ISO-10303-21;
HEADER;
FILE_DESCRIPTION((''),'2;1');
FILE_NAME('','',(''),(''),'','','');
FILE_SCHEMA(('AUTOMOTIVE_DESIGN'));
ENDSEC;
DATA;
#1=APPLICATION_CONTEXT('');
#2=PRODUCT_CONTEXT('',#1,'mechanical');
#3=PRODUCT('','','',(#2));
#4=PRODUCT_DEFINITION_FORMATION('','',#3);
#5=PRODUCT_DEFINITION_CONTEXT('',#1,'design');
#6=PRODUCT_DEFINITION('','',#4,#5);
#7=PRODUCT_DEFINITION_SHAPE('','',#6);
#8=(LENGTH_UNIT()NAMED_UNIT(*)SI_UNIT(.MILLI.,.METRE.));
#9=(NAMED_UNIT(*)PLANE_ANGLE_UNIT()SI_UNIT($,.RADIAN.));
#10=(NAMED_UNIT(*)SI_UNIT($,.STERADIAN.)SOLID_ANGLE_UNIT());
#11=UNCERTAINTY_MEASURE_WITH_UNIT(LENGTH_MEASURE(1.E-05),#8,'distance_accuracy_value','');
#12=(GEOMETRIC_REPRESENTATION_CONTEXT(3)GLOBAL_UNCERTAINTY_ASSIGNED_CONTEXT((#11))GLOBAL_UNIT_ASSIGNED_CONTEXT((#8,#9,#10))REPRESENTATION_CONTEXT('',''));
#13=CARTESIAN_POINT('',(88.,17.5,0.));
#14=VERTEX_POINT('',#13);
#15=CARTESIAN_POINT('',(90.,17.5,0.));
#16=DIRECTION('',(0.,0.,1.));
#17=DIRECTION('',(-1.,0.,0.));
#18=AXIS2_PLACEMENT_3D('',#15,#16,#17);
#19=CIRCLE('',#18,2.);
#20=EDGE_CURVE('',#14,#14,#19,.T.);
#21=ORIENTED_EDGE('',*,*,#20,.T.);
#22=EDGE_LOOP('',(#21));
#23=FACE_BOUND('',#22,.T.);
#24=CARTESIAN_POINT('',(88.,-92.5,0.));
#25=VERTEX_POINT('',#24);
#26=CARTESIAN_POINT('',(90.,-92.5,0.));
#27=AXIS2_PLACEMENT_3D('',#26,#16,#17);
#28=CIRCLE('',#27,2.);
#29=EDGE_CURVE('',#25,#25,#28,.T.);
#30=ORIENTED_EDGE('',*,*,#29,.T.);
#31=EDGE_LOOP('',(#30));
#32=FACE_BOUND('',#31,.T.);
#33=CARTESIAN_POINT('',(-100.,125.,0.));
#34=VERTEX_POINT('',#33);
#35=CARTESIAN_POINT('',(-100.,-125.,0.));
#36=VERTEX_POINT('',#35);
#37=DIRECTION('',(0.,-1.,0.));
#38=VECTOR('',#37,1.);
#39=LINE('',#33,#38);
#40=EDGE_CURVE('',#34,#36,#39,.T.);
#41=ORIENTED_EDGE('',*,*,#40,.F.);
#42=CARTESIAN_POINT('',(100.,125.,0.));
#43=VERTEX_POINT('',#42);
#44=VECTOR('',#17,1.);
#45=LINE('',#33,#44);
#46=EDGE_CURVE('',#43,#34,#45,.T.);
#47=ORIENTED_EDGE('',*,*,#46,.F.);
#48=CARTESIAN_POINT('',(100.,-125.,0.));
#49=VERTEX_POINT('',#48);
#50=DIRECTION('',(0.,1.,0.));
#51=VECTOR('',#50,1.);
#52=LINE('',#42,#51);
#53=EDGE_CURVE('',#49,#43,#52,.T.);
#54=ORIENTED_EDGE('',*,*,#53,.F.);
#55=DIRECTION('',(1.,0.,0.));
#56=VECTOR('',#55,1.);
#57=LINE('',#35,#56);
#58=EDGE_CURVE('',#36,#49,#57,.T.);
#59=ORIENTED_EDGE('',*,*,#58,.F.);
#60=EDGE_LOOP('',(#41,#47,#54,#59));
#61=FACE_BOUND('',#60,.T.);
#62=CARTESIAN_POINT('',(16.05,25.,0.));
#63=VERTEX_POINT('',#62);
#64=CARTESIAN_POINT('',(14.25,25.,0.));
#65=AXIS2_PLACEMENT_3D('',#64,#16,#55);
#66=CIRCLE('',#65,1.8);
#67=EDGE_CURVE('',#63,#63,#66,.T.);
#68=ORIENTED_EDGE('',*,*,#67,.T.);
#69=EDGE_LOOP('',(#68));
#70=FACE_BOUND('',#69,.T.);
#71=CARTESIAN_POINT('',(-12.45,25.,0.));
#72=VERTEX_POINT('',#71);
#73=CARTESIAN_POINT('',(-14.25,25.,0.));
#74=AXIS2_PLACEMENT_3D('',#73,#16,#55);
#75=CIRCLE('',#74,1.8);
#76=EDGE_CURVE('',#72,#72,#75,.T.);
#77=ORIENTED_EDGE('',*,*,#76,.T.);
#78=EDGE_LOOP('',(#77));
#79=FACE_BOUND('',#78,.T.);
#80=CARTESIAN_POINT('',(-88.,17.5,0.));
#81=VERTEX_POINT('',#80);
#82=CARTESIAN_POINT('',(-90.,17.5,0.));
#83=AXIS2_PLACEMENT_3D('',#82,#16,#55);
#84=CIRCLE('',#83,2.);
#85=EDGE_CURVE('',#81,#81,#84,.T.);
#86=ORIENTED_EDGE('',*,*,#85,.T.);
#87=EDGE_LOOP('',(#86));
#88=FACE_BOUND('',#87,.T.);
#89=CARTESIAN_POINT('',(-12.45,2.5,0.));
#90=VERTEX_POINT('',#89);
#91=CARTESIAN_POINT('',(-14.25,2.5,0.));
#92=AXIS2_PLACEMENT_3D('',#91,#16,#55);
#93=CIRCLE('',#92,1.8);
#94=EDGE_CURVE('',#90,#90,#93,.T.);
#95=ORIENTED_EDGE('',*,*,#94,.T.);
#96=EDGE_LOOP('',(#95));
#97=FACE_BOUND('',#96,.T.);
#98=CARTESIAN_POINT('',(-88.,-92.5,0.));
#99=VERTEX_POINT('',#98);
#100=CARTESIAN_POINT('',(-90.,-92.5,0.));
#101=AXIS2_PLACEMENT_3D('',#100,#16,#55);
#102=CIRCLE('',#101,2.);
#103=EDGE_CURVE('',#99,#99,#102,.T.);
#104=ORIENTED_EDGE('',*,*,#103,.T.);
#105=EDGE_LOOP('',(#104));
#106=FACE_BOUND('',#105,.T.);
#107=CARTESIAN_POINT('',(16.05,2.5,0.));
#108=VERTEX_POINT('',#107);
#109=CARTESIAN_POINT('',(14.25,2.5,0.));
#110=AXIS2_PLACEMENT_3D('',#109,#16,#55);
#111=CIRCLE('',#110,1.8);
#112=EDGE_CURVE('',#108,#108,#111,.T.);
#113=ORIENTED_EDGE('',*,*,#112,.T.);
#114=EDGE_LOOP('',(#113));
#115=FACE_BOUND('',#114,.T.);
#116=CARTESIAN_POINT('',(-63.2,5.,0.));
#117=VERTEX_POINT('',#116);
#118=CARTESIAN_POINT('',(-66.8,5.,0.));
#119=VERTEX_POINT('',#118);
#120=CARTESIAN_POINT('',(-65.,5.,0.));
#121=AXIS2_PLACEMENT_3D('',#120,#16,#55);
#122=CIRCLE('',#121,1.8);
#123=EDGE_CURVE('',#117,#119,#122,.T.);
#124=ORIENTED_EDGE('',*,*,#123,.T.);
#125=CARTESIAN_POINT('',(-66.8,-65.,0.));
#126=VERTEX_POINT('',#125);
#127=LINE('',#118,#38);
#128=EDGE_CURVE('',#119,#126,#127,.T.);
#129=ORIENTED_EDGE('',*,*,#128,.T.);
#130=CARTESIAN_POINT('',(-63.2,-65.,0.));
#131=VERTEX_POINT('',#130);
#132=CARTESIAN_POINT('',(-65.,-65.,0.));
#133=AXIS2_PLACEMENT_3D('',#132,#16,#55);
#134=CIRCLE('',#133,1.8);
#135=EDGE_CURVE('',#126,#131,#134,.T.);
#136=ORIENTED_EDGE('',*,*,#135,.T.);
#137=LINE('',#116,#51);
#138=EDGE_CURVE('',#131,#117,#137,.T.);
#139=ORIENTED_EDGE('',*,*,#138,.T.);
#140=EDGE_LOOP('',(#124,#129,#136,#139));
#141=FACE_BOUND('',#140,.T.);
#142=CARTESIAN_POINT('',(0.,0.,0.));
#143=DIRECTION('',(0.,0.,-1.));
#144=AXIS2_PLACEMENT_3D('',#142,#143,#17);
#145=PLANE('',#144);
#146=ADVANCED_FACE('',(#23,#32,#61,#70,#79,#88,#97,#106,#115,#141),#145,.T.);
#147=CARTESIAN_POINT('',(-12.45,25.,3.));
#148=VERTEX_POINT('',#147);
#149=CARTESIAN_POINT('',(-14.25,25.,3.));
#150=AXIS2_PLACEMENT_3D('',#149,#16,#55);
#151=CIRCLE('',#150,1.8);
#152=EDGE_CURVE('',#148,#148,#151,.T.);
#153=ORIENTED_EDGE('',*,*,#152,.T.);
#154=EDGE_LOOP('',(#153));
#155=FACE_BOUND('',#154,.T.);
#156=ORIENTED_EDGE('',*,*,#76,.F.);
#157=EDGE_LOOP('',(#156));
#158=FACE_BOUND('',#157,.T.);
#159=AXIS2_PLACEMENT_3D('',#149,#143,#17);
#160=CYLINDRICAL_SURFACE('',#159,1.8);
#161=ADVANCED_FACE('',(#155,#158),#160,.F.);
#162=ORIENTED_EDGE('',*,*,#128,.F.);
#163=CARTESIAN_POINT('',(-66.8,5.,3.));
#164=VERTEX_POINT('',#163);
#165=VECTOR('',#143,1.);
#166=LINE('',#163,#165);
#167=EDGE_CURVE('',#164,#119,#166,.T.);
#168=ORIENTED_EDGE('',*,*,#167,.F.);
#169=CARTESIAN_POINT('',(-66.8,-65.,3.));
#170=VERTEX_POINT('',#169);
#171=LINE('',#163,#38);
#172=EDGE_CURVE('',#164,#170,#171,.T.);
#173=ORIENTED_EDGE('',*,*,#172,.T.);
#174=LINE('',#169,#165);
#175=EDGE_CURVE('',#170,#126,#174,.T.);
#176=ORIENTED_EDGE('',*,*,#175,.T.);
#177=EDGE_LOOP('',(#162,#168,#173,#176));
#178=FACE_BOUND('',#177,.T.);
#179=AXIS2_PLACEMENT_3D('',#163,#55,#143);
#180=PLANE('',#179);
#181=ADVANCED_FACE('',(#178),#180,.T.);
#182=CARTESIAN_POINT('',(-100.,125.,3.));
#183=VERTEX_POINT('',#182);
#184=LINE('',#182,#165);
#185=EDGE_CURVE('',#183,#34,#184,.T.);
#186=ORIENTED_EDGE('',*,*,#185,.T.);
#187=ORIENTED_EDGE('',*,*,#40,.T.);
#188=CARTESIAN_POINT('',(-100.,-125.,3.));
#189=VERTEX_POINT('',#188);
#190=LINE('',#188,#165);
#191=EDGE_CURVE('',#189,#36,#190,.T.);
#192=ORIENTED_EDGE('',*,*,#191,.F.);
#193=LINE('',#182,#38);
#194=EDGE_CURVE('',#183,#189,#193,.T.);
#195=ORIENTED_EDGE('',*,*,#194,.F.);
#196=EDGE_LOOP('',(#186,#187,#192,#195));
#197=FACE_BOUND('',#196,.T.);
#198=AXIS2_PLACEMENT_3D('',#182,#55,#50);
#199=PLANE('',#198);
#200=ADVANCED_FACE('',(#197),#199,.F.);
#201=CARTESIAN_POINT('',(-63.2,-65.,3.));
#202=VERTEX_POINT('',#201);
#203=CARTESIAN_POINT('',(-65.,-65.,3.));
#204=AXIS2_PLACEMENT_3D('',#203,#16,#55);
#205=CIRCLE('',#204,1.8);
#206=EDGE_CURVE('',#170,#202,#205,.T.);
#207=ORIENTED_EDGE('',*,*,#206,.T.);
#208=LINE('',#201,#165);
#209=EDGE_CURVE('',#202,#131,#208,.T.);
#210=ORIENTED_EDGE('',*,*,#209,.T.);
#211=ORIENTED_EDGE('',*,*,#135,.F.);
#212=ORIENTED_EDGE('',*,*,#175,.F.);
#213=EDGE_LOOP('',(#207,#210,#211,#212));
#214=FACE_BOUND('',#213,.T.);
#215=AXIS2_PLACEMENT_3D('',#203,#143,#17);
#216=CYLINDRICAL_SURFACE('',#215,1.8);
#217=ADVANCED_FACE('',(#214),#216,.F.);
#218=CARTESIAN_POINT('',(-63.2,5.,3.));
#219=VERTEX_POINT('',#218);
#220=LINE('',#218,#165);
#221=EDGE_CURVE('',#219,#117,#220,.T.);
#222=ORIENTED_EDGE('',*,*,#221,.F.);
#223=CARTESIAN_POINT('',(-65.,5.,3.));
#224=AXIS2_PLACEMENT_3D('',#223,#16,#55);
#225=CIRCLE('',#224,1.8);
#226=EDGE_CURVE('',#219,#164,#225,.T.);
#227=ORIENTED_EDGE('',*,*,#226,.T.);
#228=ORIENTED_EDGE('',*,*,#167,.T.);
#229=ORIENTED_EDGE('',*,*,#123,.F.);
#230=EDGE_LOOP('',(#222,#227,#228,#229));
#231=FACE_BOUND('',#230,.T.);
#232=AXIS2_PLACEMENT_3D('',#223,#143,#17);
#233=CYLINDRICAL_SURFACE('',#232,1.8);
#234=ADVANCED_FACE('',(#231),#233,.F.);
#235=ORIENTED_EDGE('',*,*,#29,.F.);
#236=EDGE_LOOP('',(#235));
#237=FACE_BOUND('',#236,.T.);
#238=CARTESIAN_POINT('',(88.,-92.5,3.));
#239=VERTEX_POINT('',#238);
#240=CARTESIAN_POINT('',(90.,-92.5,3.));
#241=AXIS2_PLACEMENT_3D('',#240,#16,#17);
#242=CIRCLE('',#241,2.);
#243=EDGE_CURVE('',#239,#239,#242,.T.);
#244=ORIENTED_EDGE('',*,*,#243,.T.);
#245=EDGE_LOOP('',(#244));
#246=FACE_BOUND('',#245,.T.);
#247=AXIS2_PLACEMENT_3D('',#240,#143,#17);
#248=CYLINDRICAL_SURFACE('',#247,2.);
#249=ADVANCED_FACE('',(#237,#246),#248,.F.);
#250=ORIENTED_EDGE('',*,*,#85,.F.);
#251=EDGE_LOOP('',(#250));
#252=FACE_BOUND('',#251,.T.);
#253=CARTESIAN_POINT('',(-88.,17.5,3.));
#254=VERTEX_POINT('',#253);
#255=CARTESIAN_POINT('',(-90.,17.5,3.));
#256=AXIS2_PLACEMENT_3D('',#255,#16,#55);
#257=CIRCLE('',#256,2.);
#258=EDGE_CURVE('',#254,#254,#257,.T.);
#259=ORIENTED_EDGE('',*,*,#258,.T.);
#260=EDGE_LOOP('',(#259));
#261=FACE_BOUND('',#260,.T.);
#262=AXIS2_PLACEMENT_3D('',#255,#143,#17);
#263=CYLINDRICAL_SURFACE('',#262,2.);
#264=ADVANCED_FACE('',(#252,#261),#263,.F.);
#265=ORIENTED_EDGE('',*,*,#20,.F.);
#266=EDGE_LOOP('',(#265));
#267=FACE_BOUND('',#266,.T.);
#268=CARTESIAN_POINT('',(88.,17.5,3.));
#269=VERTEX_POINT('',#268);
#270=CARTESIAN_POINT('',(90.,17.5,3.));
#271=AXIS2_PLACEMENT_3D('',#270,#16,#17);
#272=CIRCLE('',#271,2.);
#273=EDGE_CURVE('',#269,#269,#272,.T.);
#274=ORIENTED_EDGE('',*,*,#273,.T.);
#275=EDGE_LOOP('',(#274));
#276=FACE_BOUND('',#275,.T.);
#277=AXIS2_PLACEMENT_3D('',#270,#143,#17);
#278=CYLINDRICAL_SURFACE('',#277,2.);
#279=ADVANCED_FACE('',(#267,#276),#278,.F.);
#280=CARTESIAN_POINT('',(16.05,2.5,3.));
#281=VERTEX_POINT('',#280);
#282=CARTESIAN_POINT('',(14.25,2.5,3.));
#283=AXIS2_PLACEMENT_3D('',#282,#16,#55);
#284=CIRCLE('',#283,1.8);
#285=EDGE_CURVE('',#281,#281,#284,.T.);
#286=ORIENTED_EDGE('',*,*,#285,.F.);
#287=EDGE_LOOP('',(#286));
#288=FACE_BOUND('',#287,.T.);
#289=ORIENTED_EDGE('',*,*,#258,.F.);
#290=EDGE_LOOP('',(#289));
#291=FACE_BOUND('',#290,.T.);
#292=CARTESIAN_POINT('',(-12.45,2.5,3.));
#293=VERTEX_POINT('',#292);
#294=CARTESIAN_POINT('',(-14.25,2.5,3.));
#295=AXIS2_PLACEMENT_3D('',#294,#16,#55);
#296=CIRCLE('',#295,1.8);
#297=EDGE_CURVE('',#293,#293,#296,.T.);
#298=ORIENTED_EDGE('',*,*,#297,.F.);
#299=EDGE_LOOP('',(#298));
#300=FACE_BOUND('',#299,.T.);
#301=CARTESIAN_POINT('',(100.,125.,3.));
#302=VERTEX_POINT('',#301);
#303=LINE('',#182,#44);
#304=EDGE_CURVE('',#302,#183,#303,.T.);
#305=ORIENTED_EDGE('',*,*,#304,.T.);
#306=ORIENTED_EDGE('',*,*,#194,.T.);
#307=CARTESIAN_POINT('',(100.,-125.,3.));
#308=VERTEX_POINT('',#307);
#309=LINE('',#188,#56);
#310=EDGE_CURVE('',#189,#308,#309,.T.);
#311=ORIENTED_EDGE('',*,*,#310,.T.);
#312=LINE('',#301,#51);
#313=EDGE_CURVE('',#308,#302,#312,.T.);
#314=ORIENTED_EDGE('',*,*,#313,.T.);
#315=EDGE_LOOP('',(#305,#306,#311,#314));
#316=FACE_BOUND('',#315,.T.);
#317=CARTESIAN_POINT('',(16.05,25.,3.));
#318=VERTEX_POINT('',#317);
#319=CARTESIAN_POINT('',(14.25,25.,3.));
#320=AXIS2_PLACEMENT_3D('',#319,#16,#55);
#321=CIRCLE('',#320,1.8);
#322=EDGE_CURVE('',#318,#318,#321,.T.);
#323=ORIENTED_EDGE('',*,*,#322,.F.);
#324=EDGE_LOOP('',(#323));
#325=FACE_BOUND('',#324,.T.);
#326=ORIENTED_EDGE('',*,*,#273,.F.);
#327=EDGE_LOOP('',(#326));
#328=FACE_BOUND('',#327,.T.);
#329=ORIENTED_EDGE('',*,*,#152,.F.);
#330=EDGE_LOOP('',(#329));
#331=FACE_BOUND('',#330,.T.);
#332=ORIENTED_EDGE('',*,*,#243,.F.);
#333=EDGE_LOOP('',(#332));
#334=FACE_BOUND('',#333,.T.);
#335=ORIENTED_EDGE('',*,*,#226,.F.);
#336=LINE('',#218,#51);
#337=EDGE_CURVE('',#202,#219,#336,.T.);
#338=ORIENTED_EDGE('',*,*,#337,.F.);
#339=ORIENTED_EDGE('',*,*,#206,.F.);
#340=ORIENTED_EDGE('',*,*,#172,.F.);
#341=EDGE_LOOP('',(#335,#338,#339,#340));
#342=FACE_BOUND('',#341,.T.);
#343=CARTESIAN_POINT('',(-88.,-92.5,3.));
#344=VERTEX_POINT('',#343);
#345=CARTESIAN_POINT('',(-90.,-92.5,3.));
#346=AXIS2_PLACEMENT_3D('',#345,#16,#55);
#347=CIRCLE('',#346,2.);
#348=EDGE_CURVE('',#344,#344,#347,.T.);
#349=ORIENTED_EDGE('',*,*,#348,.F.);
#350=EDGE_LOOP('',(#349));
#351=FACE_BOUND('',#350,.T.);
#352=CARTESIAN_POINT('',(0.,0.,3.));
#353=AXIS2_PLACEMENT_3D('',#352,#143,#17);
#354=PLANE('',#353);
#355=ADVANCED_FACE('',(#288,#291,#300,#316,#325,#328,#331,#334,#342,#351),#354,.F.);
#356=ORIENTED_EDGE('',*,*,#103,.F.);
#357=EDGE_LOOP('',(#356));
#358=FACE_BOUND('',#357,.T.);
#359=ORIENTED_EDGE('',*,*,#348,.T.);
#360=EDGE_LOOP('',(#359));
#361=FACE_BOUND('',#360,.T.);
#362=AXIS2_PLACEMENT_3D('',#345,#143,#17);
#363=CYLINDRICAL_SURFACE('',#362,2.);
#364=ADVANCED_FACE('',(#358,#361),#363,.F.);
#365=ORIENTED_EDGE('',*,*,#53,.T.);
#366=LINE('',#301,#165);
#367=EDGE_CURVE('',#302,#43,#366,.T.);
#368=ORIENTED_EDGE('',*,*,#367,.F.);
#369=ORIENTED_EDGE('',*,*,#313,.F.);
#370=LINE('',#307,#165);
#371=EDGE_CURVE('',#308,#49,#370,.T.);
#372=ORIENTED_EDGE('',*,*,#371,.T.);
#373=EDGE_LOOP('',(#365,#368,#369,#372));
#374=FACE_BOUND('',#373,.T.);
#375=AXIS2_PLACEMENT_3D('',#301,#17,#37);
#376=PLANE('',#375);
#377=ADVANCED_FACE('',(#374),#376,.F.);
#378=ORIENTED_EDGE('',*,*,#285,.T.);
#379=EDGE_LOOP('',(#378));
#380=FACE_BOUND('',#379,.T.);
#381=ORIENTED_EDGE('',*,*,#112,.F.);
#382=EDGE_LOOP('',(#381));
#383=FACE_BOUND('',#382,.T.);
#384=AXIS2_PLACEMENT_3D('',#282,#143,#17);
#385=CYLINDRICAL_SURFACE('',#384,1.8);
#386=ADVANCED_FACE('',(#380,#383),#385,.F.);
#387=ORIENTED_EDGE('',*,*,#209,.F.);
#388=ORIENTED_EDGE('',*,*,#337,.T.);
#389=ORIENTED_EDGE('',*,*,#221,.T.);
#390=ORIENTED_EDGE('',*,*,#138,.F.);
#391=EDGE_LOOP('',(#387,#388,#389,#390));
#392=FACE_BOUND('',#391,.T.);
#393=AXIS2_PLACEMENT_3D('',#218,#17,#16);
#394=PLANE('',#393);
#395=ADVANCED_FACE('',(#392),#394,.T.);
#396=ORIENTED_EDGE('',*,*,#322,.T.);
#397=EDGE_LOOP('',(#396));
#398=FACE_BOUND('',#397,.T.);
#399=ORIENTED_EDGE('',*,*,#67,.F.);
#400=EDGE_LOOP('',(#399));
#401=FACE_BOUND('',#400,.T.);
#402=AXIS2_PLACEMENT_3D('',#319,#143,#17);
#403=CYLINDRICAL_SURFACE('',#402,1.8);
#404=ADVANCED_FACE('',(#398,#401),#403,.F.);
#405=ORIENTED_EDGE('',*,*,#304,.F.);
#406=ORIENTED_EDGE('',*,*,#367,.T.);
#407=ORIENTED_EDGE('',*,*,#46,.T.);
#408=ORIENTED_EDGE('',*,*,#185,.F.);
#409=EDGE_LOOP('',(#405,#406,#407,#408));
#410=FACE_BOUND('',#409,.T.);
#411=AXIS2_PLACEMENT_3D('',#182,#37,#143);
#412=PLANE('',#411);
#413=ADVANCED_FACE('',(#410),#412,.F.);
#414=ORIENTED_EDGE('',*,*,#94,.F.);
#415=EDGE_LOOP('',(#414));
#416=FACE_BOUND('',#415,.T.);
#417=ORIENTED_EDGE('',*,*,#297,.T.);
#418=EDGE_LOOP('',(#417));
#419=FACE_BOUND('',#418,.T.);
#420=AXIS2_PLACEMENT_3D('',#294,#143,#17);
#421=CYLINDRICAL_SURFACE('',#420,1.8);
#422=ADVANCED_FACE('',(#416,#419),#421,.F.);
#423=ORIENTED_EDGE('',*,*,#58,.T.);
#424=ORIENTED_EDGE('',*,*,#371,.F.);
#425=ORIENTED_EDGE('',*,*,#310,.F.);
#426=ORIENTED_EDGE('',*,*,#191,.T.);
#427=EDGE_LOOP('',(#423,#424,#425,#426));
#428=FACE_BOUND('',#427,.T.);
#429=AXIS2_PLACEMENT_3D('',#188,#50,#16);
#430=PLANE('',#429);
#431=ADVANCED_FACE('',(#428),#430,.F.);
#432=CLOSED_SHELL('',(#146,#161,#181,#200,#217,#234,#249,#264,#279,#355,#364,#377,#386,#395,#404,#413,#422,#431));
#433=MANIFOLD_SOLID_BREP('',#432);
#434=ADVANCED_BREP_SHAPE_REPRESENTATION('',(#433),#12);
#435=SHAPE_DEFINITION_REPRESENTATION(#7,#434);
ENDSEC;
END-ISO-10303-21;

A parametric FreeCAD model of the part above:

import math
import FreeCAD as App
import Part
import Sketcher

V = App.Vector

doc = App.newDocument("Part")
params = doc.addObject("Spreadsheet::Sheet", "Params")
for row, (alias, value) in enumerate([
    ("sketch1_diameter", "4 mm"),
    ("sketch1_diameter2", "3.6 mm"),
    ("sketch1_width", "200 mm"),
    ("sketch1_height", "250 mm"),
    ("sketch1_height2", "70 mm"),
    ("pad1_length", "3 mm"),
], start=1):
    params.set(f"A{row}", alias)
    params.set(f"B{row}", "=" + value)
    params.setAlias(f"B{row}", alias)

body = doc.addObject("PartDesign::Body", "Body")

# Sketch on XY plane
sketch1 = body.newObject("Sketcher::SketchObject", "Sketch")
sketch1.AttachmentSupport = (doc.getObject("XY_Plane"), [""])
sketch1.MapMode = "FlatFace"
sketch1.addGeometry(Part.LineSegment(V(-100, 125, 0), V(-100, -125, 0)), False)
sketch1.addGeometry(Part.LineSegment(V(-100, -125, 0), V(100, -125, 0)), False)
sketch1.addGeometry(Part.LineSegment(V(100, -125, 0), V(100, 125, 0)), False)
sketch1.addGeometry(Part.LineSegment(V(100, 125, 0), V(-100, 125, 0)), False)
sketch1.addGeometry(Part.Circle(V(-90, -92.5, 0), V(0, 0, 1), 2), False)
sketch1.addGeometry(Part.Circle(V(90, -92.5, 0), V(0, 0, 1), 2), False)
sketch1.addGeometry(Part.ArcOfCircle(Part.Circle(V(-65, 5, 0), V(0, 0, 1), 1.8), math.radians(0), math.radians(180)), False)
sketch1.addGeometry(Part.LineSegment(V(-63.2, 5, 0), V(-63.2, -65, 0)), False)
sketch1.addGeometry(Part.ArcOfCircle(Part.Circle(V(-65, -65, 0), V(0, 0, 1), 1.8), math.radians(180), math.radians(360)), False)
sketch1.addGeometry(Part.LineSegment(V(-66.8, -65, 0), V(-66.8, 5, 0)), False)
sketch1.addGeometry(Part.Circle(V(-90, 17.5, 0), V(0, 0, 1), 2), False)
sketch1.addGeometry(Part.Circle(V(-14.2, 2.5, 0), V(0, 0, 1), 1.8), False)
sketch1.addGeometry(Part.Circle(V(-14.2, 25, 0), V(0, 0, 1), 1.8), False)
sketch1.addGeometry(Part.Circle(V(14.2, 2.5, 0), V(0, 0, 1), 1.8), False)
sketch1.addGeometry(Part.Circle(V(14.2, 25, 0), V(0, 0, 1), 1.8), False)
sketch1.addGeometry(Part.Circle(V(90, 17.5, 0), V(0, 0, 1), 2), False)
sketch1.addConstraint(Sketcher.Constraint("Coincident", 0, 2, 1, 1))
sketch1.addConstraint(Sketcher.Constraint("Coincident", 1, 2, 2, 1))
sketch1.addConstraint(Sketcher.Constraint("Coincident", 2, 2, 3, 1))
sketch1.addConstraint(Sketcher.Constraint("Coincident", 3, 2, 0, 1))
sketch1.addConstraint(Sketcher.Constraint("Tangent", 6, 1, 7, 1))
sketch1.addConstraint(Sketcher.Constraint("Tangent", 7, 2, 8, 2))
sketch1.addConstraint(Sketcher.Constraint("Tangent", 8, 1, 9, 1))
sketch1.addConstraint(Sketcher.Constraint("Tangent", 9, 2, 6, 2))
sketch1.addConstraint(Sketcher.Constraint("Vertical", 0))
sketch1.addConstraint(Sketcher.Constraint("Horizontal", 1))
sketch1.addConstraint(Sketcher.Constraint("Vertical", 2))
sketch1.addConstraint(Sketcher.Constraint("Horizontal", 3))
sketch1.addConstraint(Sketcher.Constraint("Vertical", 7))
sketch1.addConstraint(Sketcher.Constraint("Vertical", 9))
sketch1.addConstraint(Sketcher.Constraint("Equal", 4, 5))
sketch1.addConstraint(Sketcher.Constraint("Equal", 5, 10))
sketch1.addConstraint(Sketcher.Constraint("Equal", 8, 11))
sketch1.addConstraint(Sketcher.Constraint("Equal", 11, 12))
sketch1.addConstraint(Sketcher.Constraint("Equal", 12, 13))
sketch1.addConstraint(Sketcher.Constraint("Equal", 13, 14))
sketch1.addConstraint(Sketcher.Constraint("Equal", 10, 15))
sketch1.addConstraint(Sketcher.Constraint("Symmetric", 0, 2, 2, 2, -1, 1))
sketch1.addConstraint(Sketcher.Constraint("Symmetric", 4, 3, 5, 3, -2))
sketch1.addConstraint(Sketcher.Constraint("Symmetric", 11, 3, 13, 3, -2))
sketch1.addConstraint(Sketcher.Constraint("Symmetric", 12, 3, 14, 3, -2))
sketch1.addConstraint(Sketcher.Constraint("Symmetric", 10, 3, 15, 3, -2))
sketch1.addConstraint(Sketcher.Constraint("Vertical", 4, 3, 10, 3))
sketch1.addConstraint(Sketcher.Constraint("Vertical", 11, 3, 12, 3))
sketch1.addConstraint(Sketcher.Constraint("Diameter", 4, 4.0))
sketch1.addConstraint(Sketcher.Constraint("Diameter", 11, 3.6))
sketch1.addConstraint(Sketcher.Constraint("DistanceX", 1, 1, 1, 2, 200.0))
sketch1.addConstraint(Sketcher.Constraint("DistanceY", 0, 2, 0, 1, 250.0))
sketch1.addConstraint(Sketcher.Constraint("DistanceY", 7, 2, 7, 1, 70.0))
sketch1.addConstraint(Sketcher.Constraint("DistanceX", 4, 3, -1, 1, 90.0))
sketch1.addConstraint(Sketcher.Constraint("DistanceX", 6, 3, -1, 1, 65.0))
sketch1.addConstraint(Sketcher.Constraint("DistanceY", -1, 1, 6, 3, 5.0))
sketch1.addConstraint(Sketcher.Constraint("DistanceY", -1, 1, 12, 3, 25.0))
sketch1.addConstraint(Sketcher.Constraint("DistanceY", 4, 3, 10, 3, 110.0))
sketch1.addConstraint(Sketcher.Constraint("DistanceY", 11, 3, 10, 3, 15.0))
sketch1.addConstraint(Sketcher.Constraint("DistanceY", 4, 3, -1, 1, 92.5))
sketch1.addConstraint(Sketcher.Constraint("DistanceX", 11, 3, 13, 3, 28.5))
sketch1.setExpression("Constraints[28]", "Params.sketch1_diameter")
sketch1.setExpression("Constraints[29]", "Params.sketch1_diameter2")
sketch1.setExpression("Constraints[30]", "Params.sketch1_width")
sketch1.setExpression("Constraints[31]", "Params.sketch1_height")
sketch1.setExpression("Constraints[32]", "Params.sketch1_height2")
pad1 = body.newObject("PartDesign::Pad", "Pad")
pad1.Profile = sketch1
pad1.setExpression("Length", "Params.pad1_length")

doc.recompute()
